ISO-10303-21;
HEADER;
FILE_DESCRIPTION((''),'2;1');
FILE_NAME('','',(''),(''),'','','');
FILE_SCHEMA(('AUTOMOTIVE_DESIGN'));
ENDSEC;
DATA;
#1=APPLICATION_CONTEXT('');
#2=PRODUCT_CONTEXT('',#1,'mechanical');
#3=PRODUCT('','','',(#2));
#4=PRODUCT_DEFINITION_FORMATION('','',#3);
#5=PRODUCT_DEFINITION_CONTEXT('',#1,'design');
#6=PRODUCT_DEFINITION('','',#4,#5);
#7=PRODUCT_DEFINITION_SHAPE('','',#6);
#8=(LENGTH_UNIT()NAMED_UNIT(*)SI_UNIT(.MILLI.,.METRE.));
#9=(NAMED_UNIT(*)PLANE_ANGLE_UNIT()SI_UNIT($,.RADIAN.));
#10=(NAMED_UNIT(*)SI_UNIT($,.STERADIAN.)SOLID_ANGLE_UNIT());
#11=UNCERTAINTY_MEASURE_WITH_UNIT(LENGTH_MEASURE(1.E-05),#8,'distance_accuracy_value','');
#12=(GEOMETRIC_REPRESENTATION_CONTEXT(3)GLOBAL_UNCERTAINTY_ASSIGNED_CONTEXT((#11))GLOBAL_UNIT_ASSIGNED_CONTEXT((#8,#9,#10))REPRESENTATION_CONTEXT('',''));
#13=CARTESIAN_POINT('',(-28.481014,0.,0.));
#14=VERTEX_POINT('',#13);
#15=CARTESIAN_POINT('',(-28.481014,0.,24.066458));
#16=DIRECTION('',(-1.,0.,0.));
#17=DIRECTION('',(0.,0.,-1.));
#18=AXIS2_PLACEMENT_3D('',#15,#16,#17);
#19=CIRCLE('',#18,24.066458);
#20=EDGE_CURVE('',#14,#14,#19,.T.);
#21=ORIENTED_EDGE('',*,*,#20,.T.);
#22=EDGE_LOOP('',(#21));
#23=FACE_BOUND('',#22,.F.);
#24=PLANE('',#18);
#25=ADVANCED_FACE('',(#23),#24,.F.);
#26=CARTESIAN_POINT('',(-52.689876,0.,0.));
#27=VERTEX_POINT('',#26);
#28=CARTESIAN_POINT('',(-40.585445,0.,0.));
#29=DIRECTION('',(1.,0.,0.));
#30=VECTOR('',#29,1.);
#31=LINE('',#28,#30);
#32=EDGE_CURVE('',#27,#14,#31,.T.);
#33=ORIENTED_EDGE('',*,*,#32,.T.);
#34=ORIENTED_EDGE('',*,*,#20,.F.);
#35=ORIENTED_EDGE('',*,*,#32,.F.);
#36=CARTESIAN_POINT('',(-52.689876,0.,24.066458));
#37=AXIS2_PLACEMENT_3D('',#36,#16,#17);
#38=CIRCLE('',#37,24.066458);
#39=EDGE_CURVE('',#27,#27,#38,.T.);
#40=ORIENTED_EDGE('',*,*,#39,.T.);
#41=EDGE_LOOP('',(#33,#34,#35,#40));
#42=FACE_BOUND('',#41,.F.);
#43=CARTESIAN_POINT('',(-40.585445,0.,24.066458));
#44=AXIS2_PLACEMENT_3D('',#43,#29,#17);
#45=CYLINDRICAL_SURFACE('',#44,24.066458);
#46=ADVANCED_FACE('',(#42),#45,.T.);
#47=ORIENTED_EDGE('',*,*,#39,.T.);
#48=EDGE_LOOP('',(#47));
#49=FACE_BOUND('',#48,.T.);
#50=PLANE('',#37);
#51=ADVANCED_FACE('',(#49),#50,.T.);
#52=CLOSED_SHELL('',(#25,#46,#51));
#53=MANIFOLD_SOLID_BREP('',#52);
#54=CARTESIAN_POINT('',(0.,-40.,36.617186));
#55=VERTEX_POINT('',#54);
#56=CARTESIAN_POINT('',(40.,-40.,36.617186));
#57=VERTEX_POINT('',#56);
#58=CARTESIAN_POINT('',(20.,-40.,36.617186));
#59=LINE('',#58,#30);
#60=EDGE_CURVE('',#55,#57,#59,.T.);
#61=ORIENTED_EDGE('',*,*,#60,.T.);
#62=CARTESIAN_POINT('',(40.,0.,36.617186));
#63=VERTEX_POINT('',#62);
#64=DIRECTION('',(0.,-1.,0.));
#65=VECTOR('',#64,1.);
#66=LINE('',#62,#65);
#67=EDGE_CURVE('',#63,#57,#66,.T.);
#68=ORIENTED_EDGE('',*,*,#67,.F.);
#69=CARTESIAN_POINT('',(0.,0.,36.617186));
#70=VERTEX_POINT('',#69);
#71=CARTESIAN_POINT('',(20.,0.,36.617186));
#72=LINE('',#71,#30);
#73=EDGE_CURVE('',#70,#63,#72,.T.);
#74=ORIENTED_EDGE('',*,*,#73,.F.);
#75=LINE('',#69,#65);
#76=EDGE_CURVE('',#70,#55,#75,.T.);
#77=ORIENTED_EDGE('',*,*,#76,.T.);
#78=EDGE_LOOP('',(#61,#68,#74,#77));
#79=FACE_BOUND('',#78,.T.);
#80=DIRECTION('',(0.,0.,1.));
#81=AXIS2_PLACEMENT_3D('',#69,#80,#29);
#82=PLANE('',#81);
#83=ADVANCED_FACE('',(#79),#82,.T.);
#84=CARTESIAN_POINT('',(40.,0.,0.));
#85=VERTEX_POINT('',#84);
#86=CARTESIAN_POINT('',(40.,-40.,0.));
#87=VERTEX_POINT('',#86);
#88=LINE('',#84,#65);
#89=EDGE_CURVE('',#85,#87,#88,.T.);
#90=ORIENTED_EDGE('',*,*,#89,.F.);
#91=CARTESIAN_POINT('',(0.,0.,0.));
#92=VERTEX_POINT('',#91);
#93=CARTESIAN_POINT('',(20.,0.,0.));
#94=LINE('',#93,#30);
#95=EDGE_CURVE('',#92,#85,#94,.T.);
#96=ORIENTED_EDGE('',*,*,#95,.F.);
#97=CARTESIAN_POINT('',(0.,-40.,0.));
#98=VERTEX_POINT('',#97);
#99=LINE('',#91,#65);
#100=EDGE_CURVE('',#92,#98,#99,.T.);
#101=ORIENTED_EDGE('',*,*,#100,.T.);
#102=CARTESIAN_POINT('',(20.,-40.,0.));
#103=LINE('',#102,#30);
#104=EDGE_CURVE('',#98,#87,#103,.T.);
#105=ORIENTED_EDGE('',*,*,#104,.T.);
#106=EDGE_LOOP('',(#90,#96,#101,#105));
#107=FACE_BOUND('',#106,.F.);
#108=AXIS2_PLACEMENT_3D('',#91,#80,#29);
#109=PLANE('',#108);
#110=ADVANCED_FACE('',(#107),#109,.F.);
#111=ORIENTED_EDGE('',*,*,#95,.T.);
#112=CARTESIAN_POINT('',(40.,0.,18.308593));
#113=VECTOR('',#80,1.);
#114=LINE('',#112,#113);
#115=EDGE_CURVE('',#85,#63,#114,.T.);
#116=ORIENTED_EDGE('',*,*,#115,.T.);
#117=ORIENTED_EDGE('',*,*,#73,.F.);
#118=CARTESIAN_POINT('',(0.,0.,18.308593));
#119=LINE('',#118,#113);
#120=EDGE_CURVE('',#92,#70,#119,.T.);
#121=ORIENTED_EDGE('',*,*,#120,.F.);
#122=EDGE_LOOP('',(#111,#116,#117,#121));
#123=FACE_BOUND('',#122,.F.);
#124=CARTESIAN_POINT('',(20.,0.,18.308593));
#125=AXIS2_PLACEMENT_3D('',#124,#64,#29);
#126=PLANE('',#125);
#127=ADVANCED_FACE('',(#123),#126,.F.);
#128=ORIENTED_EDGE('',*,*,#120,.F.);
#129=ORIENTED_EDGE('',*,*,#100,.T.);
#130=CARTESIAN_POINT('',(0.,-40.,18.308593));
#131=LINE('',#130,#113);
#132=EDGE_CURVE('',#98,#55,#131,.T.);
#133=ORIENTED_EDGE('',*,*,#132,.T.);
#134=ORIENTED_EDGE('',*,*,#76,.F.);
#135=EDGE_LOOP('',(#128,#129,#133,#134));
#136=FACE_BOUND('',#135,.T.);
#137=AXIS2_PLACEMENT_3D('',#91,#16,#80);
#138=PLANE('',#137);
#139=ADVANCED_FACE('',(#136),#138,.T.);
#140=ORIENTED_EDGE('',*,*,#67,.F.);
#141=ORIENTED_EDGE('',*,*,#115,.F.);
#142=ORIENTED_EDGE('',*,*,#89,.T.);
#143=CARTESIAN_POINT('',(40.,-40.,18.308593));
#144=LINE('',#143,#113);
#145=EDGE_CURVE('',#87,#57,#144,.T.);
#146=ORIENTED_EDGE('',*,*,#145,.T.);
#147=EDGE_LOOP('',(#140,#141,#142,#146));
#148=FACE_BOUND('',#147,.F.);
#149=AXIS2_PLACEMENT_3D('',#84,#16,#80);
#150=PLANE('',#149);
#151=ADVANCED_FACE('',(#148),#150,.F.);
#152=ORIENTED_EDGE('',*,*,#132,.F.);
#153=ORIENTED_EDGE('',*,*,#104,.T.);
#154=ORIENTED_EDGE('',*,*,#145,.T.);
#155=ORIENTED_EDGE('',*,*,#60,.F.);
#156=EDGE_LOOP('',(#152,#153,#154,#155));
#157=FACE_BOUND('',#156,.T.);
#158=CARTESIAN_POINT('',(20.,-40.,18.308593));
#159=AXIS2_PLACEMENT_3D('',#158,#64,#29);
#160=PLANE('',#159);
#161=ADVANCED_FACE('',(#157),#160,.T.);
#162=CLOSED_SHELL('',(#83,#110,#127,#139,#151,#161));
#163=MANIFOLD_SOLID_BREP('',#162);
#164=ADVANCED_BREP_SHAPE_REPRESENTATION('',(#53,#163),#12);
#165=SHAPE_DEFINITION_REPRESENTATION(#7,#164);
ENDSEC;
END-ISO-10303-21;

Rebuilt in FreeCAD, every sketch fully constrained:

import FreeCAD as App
import Part
import Sketcher
Q = App.Units.Quantity

doc = App.newDocument("Part")
body = doc.addObject("PartDesign::Body", "Body")

# Sketch on XZ plane
sketch1 = body.newObject("Sketcher::SketchObject", "Sketch")
sketch1.AttachmentSupport = (doc.getObject("XZ_Plane"), [""])
sketch1.MapMode = "FlatFace"
sketch1.addGeometry([
    Part.LineSegment(App.Vector(0, 37, 0), App.Vector(0, 0, 0)),
    Part.LineSegment(App.Vector(0, 0, 0), App.Vector(40, 0, 0)),
    Part.LineSegment(App.Vector(40, 0, 0), App.Vector(40, 37, 0)),
    Part.LineSegment(App.Vector(40, 37, 0), App.Vector(0, 37, 0)),
], False)
sketch1.addConstraint([
    Sketcher.Constraint("Coincident", 0, 2, 1, 1),
    Sketcher.Constraint("Coincident", 1, 2, 2, 1),
    Sketcher.Constraint("Coincident", 2, 2, 3, 1),
    Sketcher.Constraint("Coincident", 3, 2, 0, 1),
    Sketcher.Constraint("Vertical", 0),
    Sketcher.Constraint("Horizontal", 1),
    Sketcher.Constraint("Vertical", 2),
    Sketcher.Constraint("Horizontal", 3),
    Sketcher.Constraint("Coincident", 0, 2, -1, 1),
    Sketcher.Constraint("DistanceX", 1, 1, 1, 2, Q("40 mm")),
    Sketcher.Constraint("DistanceY", 0, 2, 0, 1, Q("36.617186 mm")),
])
pad1 = body.newObject("PartDesign::Pad", "Pad")
pad1.Profile = sketch1
pad1.Length = 40
body2 = doc.addObject("PartDesign::Body", "Body001")

# Sketch on XZ plane
sketch2 = body2.newObject("Sketcher::SketchObject", "Sketch001")
sketch2.AttachmentSupport = (doc.getObject("XZ_Plane001"), [""])
sketch2.MapMode = "FlatFace"
sketch2.addGeometry([
    Part.LineSegment(App.Vector(-53, 24, 0), App.Vector(-53, 0, 0)),
    Part.LineSegment(App.Vector(-53, 0, 0), App.Vector(-28, 0, 0)),
    Part.LineSegment(App.Vector(-28, 0, 0), App.Vector(-28, 24, 0)),
    Part.LineSegment(App.Vector(-28, 24, 0), App.Vector(-53, 24, 0)),
], False)
sketch2.addGeometry(Part.LineSegment(App.Vector(-28, 24, 0), App.Vector(-53, 24, 0)), True)  # axis
sketch2.addConstraint([
    Sketcher.Constraint("Coincident", 0, 2, 1, 1),
    Sketcher.Constraint("Coincident", 1, 2, 2, 1),
    Sketcher.Constraint("Coincident", 2, 2, 3, 1),
    Sketcher.Constraint("Coincident", 3, 2, 0, 1),
    Sketcher.Constraint("Vertical", 0),
    Sketcher.Constraint("Horizontal", 1),
    Sketcher.Constraint("Vertical", 2),
    Sketcher.Constraint("Horizontal", 3),
    Sketcher.Constraint("Horizontal", 4),
    Sketcher.Constraint("Coincident", 4, 1, 2, 2),
    Sketcher.Constraint("PointOnObject", 0, 2, -1),
    Sketcher.Constraint("Vertical", 0, 2, 4, 2),
    Sketcher.Constraint("DistanceX", 1, 1, 1, 2, Q("24.208862 mm")),
    Sketcher.Constraint("DistanceY", 0, 2, 0, 1, Q("24.066458 mm")),
    Sketcher.Constraint("DistanceX", 0, 2, -1, 1, Q("52.689876 mm")),
])
revolution = body2.newObject("PartDesign::Revolution", "Revolution")
revolution.Profile = sketch2
revolution.ReferenceAxis = (sketch2, ["Axis0"])
revolution.Angle = 360

doc.recompute()
